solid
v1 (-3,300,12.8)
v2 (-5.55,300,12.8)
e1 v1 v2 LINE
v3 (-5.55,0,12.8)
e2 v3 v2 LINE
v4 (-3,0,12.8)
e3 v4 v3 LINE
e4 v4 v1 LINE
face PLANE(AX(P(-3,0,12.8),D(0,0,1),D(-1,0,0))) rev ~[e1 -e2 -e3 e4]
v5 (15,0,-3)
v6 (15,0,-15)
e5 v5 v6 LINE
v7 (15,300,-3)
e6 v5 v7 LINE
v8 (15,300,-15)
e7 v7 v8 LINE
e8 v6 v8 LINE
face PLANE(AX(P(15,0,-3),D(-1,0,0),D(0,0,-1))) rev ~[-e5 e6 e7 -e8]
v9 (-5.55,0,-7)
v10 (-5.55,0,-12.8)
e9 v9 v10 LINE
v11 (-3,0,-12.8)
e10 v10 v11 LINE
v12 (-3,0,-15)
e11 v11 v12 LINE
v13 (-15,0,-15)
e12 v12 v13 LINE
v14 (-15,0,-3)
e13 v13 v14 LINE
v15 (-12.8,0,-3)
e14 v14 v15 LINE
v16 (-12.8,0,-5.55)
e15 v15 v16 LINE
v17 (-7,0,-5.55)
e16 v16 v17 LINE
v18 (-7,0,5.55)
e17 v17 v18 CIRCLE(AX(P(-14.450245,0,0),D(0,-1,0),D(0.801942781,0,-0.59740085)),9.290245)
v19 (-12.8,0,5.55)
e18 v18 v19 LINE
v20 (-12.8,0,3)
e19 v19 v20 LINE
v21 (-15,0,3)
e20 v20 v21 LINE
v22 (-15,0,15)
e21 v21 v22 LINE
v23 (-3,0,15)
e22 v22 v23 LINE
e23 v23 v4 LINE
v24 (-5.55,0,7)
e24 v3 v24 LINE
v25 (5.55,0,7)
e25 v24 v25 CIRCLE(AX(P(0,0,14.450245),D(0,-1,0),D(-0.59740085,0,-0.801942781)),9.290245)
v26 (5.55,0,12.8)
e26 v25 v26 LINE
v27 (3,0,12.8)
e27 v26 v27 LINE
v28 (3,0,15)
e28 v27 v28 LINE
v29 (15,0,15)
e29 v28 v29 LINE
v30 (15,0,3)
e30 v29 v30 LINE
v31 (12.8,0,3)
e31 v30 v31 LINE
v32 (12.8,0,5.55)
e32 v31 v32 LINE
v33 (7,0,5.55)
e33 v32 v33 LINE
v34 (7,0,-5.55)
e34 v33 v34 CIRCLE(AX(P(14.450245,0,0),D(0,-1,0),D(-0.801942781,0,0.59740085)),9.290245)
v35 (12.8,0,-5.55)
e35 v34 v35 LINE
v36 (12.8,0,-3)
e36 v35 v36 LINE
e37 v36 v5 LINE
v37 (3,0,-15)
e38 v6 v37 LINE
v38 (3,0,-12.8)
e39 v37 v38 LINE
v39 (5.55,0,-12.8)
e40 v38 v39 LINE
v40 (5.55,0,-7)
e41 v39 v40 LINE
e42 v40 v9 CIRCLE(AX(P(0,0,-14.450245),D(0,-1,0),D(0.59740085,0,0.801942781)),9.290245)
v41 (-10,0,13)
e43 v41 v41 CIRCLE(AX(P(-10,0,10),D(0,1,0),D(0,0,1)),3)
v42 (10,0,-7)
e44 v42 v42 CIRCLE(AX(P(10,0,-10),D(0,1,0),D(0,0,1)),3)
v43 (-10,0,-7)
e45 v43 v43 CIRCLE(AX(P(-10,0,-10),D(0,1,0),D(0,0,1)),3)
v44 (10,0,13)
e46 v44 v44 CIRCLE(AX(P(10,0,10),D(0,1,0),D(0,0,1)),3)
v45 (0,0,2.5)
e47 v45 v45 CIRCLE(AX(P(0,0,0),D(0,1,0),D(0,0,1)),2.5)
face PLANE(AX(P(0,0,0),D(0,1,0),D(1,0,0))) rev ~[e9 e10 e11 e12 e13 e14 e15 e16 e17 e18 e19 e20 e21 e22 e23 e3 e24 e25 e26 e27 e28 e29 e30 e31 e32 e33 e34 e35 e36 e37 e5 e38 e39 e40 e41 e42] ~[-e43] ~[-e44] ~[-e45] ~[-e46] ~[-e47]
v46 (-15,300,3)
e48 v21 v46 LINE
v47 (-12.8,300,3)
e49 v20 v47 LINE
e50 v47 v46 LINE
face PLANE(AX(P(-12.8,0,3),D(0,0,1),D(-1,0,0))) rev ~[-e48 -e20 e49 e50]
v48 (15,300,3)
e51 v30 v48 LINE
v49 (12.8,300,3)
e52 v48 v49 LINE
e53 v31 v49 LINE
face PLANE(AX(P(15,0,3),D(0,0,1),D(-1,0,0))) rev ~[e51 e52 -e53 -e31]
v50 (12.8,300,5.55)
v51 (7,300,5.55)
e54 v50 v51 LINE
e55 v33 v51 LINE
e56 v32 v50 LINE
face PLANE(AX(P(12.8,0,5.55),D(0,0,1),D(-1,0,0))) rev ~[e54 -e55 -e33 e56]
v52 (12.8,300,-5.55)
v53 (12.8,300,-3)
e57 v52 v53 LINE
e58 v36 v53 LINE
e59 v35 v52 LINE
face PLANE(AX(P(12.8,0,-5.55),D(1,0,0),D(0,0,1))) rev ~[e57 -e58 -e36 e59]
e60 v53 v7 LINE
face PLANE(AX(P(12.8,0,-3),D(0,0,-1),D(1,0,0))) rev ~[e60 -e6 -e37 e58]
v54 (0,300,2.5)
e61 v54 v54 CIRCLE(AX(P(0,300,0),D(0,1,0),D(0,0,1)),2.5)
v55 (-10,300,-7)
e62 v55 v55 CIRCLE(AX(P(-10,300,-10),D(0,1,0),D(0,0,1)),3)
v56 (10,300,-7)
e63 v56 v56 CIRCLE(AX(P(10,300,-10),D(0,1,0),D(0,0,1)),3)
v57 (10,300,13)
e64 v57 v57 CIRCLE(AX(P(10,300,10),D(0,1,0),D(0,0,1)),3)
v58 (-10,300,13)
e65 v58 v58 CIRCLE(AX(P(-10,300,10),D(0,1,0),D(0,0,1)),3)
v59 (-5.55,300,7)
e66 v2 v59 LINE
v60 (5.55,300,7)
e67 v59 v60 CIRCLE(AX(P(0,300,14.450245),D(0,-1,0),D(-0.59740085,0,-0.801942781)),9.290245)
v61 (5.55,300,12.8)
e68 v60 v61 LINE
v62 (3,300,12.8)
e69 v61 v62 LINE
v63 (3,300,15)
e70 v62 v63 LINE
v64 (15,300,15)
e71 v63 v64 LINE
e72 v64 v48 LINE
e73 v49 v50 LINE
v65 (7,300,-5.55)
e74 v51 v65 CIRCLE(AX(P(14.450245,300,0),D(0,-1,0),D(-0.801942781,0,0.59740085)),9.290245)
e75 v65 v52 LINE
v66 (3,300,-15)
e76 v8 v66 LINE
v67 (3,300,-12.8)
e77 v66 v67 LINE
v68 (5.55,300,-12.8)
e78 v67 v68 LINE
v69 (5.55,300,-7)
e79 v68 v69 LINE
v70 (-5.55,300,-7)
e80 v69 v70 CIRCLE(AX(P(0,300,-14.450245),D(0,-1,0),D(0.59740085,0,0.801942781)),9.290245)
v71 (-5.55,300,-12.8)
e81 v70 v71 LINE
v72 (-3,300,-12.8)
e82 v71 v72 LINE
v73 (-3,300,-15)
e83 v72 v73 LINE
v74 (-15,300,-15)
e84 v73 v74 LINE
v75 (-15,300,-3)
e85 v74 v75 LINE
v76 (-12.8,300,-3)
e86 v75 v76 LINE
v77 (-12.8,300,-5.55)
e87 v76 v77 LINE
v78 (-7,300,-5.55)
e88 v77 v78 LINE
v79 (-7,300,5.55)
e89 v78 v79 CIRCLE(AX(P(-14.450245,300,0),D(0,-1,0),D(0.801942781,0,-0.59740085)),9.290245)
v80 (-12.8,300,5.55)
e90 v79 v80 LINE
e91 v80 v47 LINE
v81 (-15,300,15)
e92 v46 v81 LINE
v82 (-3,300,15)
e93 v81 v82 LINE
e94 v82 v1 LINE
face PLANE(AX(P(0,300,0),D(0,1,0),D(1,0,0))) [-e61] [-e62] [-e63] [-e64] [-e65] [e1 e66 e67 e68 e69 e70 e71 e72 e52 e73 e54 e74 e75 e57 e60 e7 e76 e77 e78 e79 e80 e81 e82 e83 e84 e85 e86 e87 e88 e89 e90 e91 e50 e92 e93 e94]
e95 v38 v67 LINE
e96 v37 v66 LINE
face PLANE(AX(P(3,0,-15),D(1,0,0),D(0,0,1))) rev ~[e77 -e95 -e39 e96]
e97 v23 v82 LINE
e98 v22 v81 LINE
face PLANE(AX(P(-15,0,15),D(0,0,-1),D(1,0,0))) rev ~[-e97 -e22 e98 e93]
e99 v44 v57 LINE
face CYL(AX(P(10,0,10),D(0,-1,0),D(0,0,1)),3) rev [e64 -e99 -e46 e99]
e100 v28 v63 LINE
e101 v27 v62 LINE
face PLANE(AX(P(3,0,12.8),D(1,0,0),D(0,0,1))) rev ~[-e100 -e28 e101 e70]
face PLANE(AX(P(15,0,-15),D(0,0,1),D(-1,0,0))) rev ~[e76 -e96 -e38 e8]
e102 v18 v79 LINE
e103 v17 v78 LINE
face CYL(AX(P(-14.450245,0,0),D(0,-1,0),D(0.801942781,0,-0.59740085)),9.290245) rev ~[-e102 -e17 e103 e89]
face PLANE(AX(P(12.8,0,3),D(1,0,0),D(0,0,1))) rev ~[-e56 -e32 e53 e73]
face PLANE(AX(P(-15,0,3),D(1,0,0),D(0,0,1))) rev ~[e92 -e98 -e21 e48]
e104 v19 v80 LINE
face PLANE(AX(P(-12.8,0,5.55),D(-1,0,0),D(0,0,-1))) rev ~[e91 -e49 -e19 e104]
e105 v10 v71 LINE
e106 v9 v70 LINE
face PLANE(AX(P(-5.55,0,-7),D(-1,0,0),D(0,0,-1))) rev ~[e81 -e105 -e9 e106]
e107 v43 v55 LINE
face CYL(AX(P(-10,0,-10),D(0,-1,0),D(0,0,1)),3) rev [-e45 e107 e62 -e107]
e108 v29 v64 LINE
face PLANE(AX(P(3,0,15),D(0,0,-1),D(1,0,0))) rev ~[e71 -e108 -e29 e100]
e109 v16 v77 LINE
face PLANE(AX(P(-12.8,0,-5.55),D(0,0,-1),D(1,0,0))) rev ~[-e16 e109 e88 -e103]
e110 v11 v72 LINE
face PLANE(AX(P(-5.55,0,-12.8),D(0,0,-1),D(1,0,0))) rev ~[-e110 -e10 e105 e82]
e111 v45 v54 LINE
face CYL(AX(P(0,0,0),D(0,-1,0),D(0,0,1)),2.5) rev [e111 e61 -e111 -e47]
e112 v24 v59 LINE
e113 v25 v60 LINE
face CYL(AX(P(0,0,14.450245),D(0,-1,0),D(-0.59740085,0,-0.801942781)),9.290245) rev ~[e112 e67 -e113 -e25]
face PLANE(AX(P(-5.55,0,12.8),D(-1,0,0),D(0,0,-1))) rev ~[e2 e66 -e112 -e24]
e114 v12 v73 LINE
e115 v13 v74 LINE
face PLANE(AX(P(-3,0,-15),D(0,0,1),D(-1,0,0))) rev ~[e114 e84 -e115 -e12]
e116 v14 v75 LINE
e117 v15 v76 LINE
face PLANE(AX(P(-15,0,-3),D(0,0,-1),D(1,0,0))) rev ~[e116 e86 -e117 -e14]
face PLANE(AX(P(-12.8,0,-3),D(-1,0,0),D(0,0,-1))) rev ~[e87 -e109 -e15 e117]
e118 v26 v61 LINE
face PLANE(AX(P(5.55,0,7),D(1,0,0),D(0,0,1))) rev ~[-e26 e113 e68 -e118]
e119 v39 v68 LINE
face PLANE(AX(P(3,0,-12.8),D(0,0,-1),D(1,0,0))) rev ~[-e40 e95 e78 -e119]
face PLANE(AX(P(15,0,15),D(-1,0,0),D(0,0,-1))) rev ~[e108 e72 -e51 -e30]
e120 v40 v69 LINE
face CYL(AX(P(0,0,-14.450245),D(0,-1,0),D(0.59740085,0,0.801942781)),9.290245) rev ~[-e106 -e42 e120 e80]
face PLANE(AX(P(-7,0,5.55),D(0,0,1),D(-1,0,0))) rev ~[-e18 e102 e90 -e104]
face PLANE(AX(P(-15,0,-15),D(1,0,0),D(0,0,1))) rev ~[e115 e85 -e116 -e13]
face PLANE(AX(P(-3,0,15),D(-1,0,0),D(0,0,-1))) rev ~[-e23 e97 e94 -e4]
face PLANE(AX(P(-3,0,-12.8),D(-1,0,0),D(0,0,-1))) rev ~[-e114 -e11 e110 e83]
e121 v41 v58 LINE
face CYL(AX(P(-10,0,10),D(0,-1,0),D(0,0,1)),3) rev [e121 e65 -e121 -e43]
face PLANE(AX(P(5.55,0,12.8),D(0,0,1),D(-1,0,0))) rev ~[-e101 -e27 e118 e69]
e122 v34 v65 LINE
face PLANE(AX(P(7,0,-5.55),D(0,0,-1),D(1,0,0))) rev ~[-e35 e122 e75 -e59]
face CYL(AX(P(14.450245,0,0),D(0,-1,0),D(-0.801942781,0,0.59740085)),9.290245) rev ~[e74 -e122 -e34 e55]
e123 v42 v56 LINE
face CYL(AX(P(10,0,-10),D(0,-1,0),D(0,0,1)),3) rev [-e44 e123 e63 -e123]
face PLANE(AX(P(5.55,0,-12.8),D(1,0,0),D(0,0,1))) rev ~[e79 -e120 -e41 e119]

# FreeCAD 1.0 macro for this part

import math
import FreeCAD as App
import Part
import Sketcher

doc = App.newDocument("Part")
params = doc.addObject("Spreadsheet::Sheet", "Params")
for row, (alias, value) in enumerate([
    ("sketch1_diameter", "6 mm"),
    ("sketch1_diameter2", "5 mm"),
    ("sketch1_width", "12 mm"),
    ("sketch1_width2", "2.2 mm"),
    ("sketch1_width3", "5.8 mm"),
    ("pad1_length", "300 mm"),
], start=1):
    params.set(f"A{row}", alias)
    params.set(f"B{row}", "=" + value)
    params.setAlias(f"B{row}", alias)

body = doc.addObject("PartDesign::Body", "Body")

sketch1 = doc.addObject("Sketcher::SketchObject", "Sketch")
body.addObject(sketch1)
sketch1.AttachmentSupport = (doc.XZ_Plane, [""])
sketch1.MapMode = "FlatFace"
sketch1.addGeometry([
    Part.LineSegment(App.Vector(-3, 15, 0), App.Vector(-3, 12.8, 0)),
    Part.LineSegment(App.Vector(-3, 12.8, 0), App.Vector(-5.5, 12.8, 0)),
    Part.LineSegment(App.Vector(-5.5, 12.8, 0), App.Vector(-5.5, 7, 0)),
    Part.ArcOfCircle(Part.Circle(App.Vector(0, 14.5, 0), App.Vector(0, 0, 1), 9.3), math.radians(-127), math.radians(-53)),
    Part.LineSegment(App.Vector(5.5, 7, 0), App.Vector(5.5, 12.8, 0)),
    Part.LineSegment(App.Vector(5.5, 12.8, 0), App.Vector(3, 12.8, 0)),
    Part.LineSegment(App.Vector(3, 12.8, 0), App.Vector(3, 15, 0)),
    Part.LineSegment(App.Vector(3, 15, 0), App.Vector(15, 15, 0)),
    Part.LineSegment(App.Vector(15, 15, 0), App.Vector(15, 3, 0)),
    Part.LineSegment(App.Vector(15, 3, 0), App.Vector(12.8, 3, 0)),
    Part.LineSegment(App.Vector(12.8, 3, 0), App.Vector(12.8, 5.5, 0)),
    Part.LineSegment(App.Vector(12.8, 5.5, 0), App.Vector(7, 5.5, 0)),
    Part.ArcOfCircle(Part.Circle(App.Vector(14.5, 0, 0), App.Vector(0, 0, 1), 9.3), math.radians(143), math.radians(217)),
    Part.LineSegment(App.Vector(7, -5.5, 0), App.Vector(12.8, -5.5, 0)),
    Part.LineSegment(App.Vector(12.8, -5.5, 0), App.Vector(12.8, -3, 0)),
    Part.LineSegment(App.Vector(12.8, -3, 0), App.Vector(15, -3, 0)),
    Part.LineSegment(App.Vector(15, -3, 0), App.Vector(15, -15, 0)),
    Part.LineSegment(App.Vector(15, -15, 0), App.Vector(3, -15, 0)),
    Part.LineSegment(App.Vector(3, -15, 0), App.Vector(3, -12.8, 0)),
    Part.LineSegment(App.Vector(3, -12.8, 0), App.Vector(5.5, -12.8, 0)),
    Part.LineSegment(App.Vector(5.5, -12.8, 0), App.Vector(5.5, -7, 0)),
    Part.ArcOfCircle(Part.Circle(App.Vector(0, -14.5, 0), App.Vector(0, 0, 1), 9.3), math.radians(53), math.radians(127)),
    Part.LineSegment(App.Vector(-5.5, -7, 0), App.Vector(-5.5, -12.8, 0)),
    Part.LineSegment(App.Vector(-5.5, -12.8, 0), App.Vector(-3, -12.8, 0)),
    Part.LineSegment(App.Vector(-3, -12.8, 0), App.Vector(-3, -15, 0)),
    Part.LineSegment(App.Vector(-3, -15, 0), App.Vector(-15, -15, 0)),
    Part.LineSegment(App.Vector(-15, -15, 0), App.Vector(-15, -3, 0)),
    Part.LineSegment(App.Vector(-15, -3, 0), App.Vector(-12.8, -3, 0)),
    Part.LineSegment(App.Vector(-12.8, -3, 0), App.Vector(-12.8, -5.5, 0)),
    Part.LineSegment(App.Vector(-12.8, -5.5, 0), App.Vector(-7, -5.5, 0)),
    Part.ArcOfCircle(Part.Circle(App.Vector(-14.5, 0, 0), App.Vector(0, 0, 1), 9.3), math.radians(-37), math.radians(37)),
    Part.LineSegment(App.Vector(-7, 5.5, 0), App.Vector(-12.8, 5.5, 0)),
    Part.LineSegment(App.Vector(-12.8, 5.5, 0), App.Vector(-12.8, 3, 0)),
    Part.LineSegment(App.Vector(-12.8, 3, 0), App.Vector(-15, 3, 0)),
    Part.LineSegment(App.Vector(-15, 3, 0), App.Vector(-15, 15, 0)),
    Part.LineSegment(App.Vector(-15, 15, 0), App.Vector(-3, 15, 0)),
    Part.Circle(App.Vector(-10, 10, 0), App.Vector(0, 0, 1), 3),
    Part.Circle(App.Vector(10, 10, 0), App.Vector(0, 0, 1), 3),
    Part.Circle(App.Vector(-10, -10, 0), App.Vector(0, 0, 1), 3),
    Part.Circle(App.Vector(0, 0, 0), App.Vector(0, 0, 1), 2.5),
    Part.Circle(App.Vector(10, -10, 0), App.Vector(0, 0, 1), 3),
], False)
sketch1.addConstraint([
    Sketcher.Constraint("Coincident", 0, 2, 1, 1),
    Sketcher.Constraint("Coincident", 1, 2, 2, 1),
    Sketcher.Constraint("Coincident", 2, 2, 3, 1),
    Sketcher.Constraint("Coincident", 3, 2, 4, 1),
    Sketcher.Constraint("Coincident", 4, 2, 5, 1),
    Sketcher.Constraint("Coincident", 5, 2, 6, 1),
    Sketcher.Constraint("Coincident", 6, 2, 7, 1),
    Sketcher.Constraint("Coincident", 7, 2, 8, 1),
    Sketcher.Constraint("Coincident", 8, 2, 9, 1),
    Sketcher.Constraint("Coincident", 9, 2, 10, 1),
    Sketcher.Constraint("Coincident", 10, 2, 11, 1),
    Sketcher.Constraint("Coincident", 11, 2, 12, 1),
    Sketcher.Constraint("Coincident", 12, 2, 13, 1),
    Sketcher.Constraint("Coincident", 13, 2, 14, 1),
    Sketcher.Constraint("Coincident", 14, 2, 15, 1),
    Sketcher.Constraint("Coincident", 15, 2, 16, 1),
    Sketcher.Constraint("Coincident", 16, 2, 17, 1),
    Sketcher.Constraint("Coincident", 17, 2, 18, 1),
    Sketcher.Constraint("Coincident", 18, 2, 19, 1),
    Sketcher.Constraint("Coincident", 19, 2, 20, 1),
    Sketcher.Constraint("Coincident", 20, 2, 21, 1),
    Sketcher.Constraint("Coincident", 21, 2, 22, 1),
    Sketcher.Constraint("Coincident", 22, 2, 23, 1),
    Sketcher.Constraint("Coincident", 23, 2, 24, 1),
    Sketcher.Constraint("Coincident", 24, 2, 25, 1),
    Sketcher.Constraint("Coincident", 25, 2, 26, 1),
    Sketcher.Constraint("Coincident", 26, 2, 27, 1),
    Sketcher.Constraint("Coincident", 27, 2, 28, 1),
    Sketcher.Constraint("Coincident", 28, 2, 29, 1),
    Sketcher.Constraint("Coincident", 29, 2, 30, 1),
    Sketcher.Constraint("Coincident", 30, 2, 31, 1),
    Sketcher.Constraint("Coincident", 31, 2, 32, 1),
    Sketcher.Constraint("Coincident", 32, 2, 33, 1),
    Sketcher.Constraint("Coincident", 33, 2, 34, 1),
    Sketcher.Constraint("Coincident", 34, 2, 35, 1),
    Sketcher.Constraint("Coincident", 35, 2, 0, 1),
    Sketcher.Constraint("Vertical", 0),
    Sketcher.Constraint("Horizontal", 1),
    Sketcher.Constraint("Vertical", 2),
    Sketcher.Constraint("Vertical", 4),
    Sketcher.Constraint("Horizontal", 5),
    Sketcher.Constraint("Vertical", 6),
    Sketcher.Constraint("Horizontal", 7),
    Sketcher.Constraint("Vertical", 8),
    Sketcher.Constraint("Horizontal", 9),
    Sketcher.Constraint("Vertical", 10),
    Sketcher.Constraint("Horizontal", 11),
    Sketcher.Constraint("Horizontal", 13),
    Sketcher.Constraint("Vertical", 14),
    Sketcher.Constraint("Horizontal", 15),
    Sketcher.Constraint("Vertical", 16),
    Sketcher.Constraint("Horizontal", 17),
    Sketcher.Constraint("Vertical", 18),
    Sketcher.Constraint("Horizontal", 19),
    Sketcher.Constraint("Vertical", 20),
    Sketcher.Constraint("Vertical", 22),
    Sketcher.Constraint("Horizontal", 23),
    Sketcher.Constraint("Vertical", 24),
    Sketcher.Constraint("Horizontal", 25),
    Sketcher.Constraint("Vertical", 26),
    Sketcher.Constraint("Horizontal", 27),
    Sketcher.Constraint("Vertical", 28),
    Sketcher.Constraint("Horizontal", 29),
    Sketcher.Constraint("Horizontal", 31),
    Sketcher.Constraint("Vertical", 32),
    Sketcher.Constraint("Horizontal", 33),
    Sketcher.Constraint("Vertical", 34),
    Sketcher.Constraint("Horizontal", 35),
    Sketcher.Constraint("Coincident", 39, 3, -1, 1),
    Sketcher.Constraint("Equal", 3, 12),
    Sketcher.Constraint("Equal", 12, 21),
    Sketcher.Constraint("Equal", 21, 30),
    Sketcher.Constraint("Equal", 36, 37),
    Sketcher.Constraint("Equal", 37, 38),
    Sketcher.Constraint("Equal", 38, 40),
    Sketcher.Constraint("Symmetric", 3, 3, 21, 3, -1, 1),
    Sketcher.Constraint("Symmetric", 12, 3, 30, 3, -1, 1),
    Sketcher.Constraint("Symmetric", 37, 3, 38, 3, -1, 1),
    Sketcher.Constraint("Symmetric", 36, 3, 40, 3, -1, 1),
    Sketcher.Constraint("Symmetric", 0, 2, 18, 2, -1, 1),
    Sketcher.Constraint("Symmetric", 4, 2, 22, 2, -1, 1),
    Sketcher.Constraint("Symmetric", 6, 2, 24, 2, -1, 1),
    Sketcher.Constraint("Symmetric", 8, 2, 26, 2, -1, 1),
    Sketcher.Constraint("Symmetric", 10, 2, 28, 2, -1, 1),
    Sketcher.Constraint("Symmetric", 13, 2, 31, 2, -1, 1),
    Sketcher.Constraint("Symmetric", 15, 2, 33, 2, -1, 1),
    Sketcher.Constraint("Symmetric", 36, 3, 37, 3, -2),
    Sketcher.Constraint("Symmetric", 2, 2, 3, 2, -2),
    Sketcher.Constraint("Symmetric", 0, 2, 5, 2, -2),
    Sketcher.Constraint("Symmetric", 16, 2, 25, 2, -2),
    Sketcher.Constraint("Symmetric", 14, 2, 27, 2, -2),
    Sketcher.Constraint("Symmetric", 12, 2, 29, 2, -2),
    Sketcher.Constraint("Horizontal", 20, 2, 21, 2),
    Sketcher.Constraint("Horizontal", 7, 2, 34, 2),
    Sketcher.Constraint("Equal", 33, 0),
    Sketcher.Constraint("Equal", 31, 2),
    Sketcher.Constraint("Equal", 35, 8),
    Sketcher.Constraint("Equal", 23, 10),
    Sketcher.Constraint("Diameter", 36, 6.0),
    Sketcher.Constraint("Diameter", 39, 5.0),
    Sketcher.Constraint("DistanceX", 7, 1, 7, 2, 12.0),
    Sketcher.Constraint("DistanceX", 9, 2, 9, 1, 2.2),
    Sketcher.Constraint("DistanceX", 11, 2, 11, 1, 5.8),
    Sketcher.Constraint("DistanceX", 36, 3, -1, 1, 10.0),
    Sketcher.Constraint("DistanceY", -1, 1, 36, 3, 10.0),
    Sketcher.Constraint("DistanceX", 0, 2, -1, 1, 3.0),
    Sketcher.Constraint("DistanceY", -1, 1, 2, 2, 7.0),
    Sketcher.Constraint("DistanceX", 1, 2, 1, 1, 2.55),
    Sketcher.Constraint("Radius", 3, 9.290245),
])
sketch1.setExpression("Constraints[98]", "Params.sketch1_diameter")
sketch1.setExpression("Constraints[99]", "Params.sketch1_diameter2")
sketch1.setExpression("Constraints[100]", "Params.sketch1_width")
sketch1.setExpression("Constraints[101]", "Params.sketch1_width2")
sketch1.setExpression("Constraints[102]", "Params.sketch1_width3")
pad1 = doc.addObject("PartDesign::Pad", "Pad")
body.addObject(pad1)
pad1.Profile = sketch1
pad1.setExpression("Length", "Params.pad1_length")
pad1.Reversed = True

doc.recompute()
